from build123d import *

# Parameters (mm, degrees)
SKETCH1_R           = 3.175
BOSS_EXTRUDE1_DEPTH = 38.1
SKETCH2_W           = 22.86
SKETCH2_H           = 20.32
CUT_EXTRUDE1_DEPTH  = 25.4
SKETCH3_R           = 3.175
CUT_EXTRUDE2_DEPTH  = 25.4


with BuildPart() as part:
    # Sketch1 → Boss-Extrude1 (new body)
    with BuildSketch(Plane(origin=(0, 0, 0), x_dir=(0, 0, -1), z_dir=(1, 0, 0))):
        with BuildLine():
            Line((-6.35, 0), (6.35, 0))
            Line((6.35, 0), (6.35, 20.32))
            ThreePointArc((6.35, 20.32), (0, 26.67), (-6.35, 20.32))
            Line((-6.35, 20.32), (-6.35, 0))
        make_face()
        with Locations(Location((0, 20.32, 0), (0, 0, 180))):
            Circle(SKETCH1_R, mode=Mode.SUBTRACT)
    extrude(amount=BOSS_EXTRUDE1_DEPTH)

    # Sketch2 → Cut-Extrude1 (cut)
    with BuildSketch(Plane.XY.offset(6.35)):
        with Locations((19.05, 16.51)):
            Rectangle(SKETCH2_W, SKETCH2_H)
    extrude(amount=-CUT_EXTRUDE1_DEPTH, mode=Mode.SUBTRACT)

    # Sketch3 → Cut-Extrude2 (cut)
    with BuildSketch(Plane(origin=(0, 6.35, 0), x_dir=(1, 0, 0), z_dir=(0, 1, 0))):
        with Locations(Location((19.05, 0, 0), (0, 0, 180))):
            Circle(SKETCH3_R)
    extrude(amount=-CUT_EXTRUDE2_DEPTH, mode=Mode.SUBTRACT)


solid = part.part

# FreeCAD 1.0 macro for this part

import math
import FreeCAD as App
import Part
import Sketcher

V = App.Vector
Q = App.Units.Quantity

doc = App.newDocument("Part")
body = doc.addObject("PartDesign::Body", "Body")

sketch1 = body.newObject("Sketcher::SketchObject", "Sketch")
sketch1.AttachmentSupport = (doc.getObject("YZ_Plane"), [""])
sketch1.MapMode = "FlatFace"
sketch1.addGeometry([
    Part.LineSegment(V(0, 6.3, 0), V(0, -6.3, 0)),
    Part.LineSegment(V(0, -6.3, 0), V(20.3, -6.3, 0)),
    Part.ArcOfCircle(Part.Circle(V(20.3, 0, 0), V(0, 0, 1), 6.3), math.radians(-90), math.radians(90)),
    Part.LineSegment(V(20.3, 6.3, 0), V(0, 6.3, 0)),
    Part.Circle(V(20.3, 0, 0), V(0, 0, 1), 3.2),
], False)
sketch1.addConstraint([
    Sketcher.Constraint("Coincident", 0, 2, 1, 1),
    Sketcher.Constraint("Tangent", 1, 2, 2, 1),
    Sketcher.Constraint("Tangent", 2, 2, 3, 1),
    Sketcher.Constraint("Coincident", 3, 2, 0, 1),
    Sketcher.Constraint("Vertical", 0),
    Sketcher.Constraint("Horizontal", 1),
    Sketcher.Constraint("Horizontal", 3),
    Sketcher.Constraint("Coincident", 4, 3, 2, 3),
    Sketcher.Constraint("Symmetric", 0, 2, 3, 2, -1, 1),
    Sketcher.Constraint("Diameter", 4, Q("0.25 in")),
    Sketcher.Constraint("Radius", 2, Q("0.25 in")),
    Sketcher.Constraint("DistanceX", 1, 1, 1, 2, Q("0.8 in")),
])
pad1 = body.newObject("PartDesign::Pad", "Pad")
pad1.Profile = sketch1
pad1.Length = Q("1.5 in")

sketch2 = body.newObject("Sketcher::SketchObject", "Sketch001")
sketch2.AttachmentSupport = (doc.getObject("XY_Plane"), [""])
sketch2.MapMode = "FlatFace"
sketch2.AttachmentOffset = App.Placement(V(0, 0, 0.25 * 25.4), App.Rotation())
sketch2.addGeometry([
    Part.LineSegment(V(8, 27, 0), V(8, 6, 0)),
    Part.LineSegment(V(8, 6, 0), V(30, 6, 0)),
    Part.LineSegment(V(30, 6, 0), V(30, 27, 0)),
    Part.LineSegment(V(30, 27, 0), V(8, 27, 0)),
], False)
sketch2.addConstraint([
    Sketcher.Constraint("Coincident", 0, 2, 1, 1),
    Sketcher.Constraint("Coincident", 1, 2, 2, 1),
    Sketcher.Constraint("Coincident", 2, 2, 3, 1),
    Sketcher.Constraint("Coincident", 3, 2, 0, 1),
    Sketcher.Constraint("Vertical", 0),
    Sketcher.Constraint("Horizontal", 1),
    Sketcher.Constraint("Vertical", 2),
    Sketcher.Constraint("Horizontal", 3),
    Sketcher.Constraint("DistanceX", 1, 1, 1, 2, Q("0.9 in")),
    Sketcher.Constraint("DistanceY", 0, 2, 0, 1, Q("0.8 in")),
    Sketcher.Constraint("DistanceX", -1, 1, 0, 2, Q("0.3 in")),
    Sketcher.Constraint("DistanceY", -1, 1, 0, 2, Q("0.25 in")),
])
pocket1 = body.newObject("PartDesign::Pocket", "Pocket")
pocket1.Profile = sketch2
pocket1.Length = Q("1 in")

sketch3 = body.newObject("Sketcher::SketchObject", "Sketch002")
sketch3.AttachmentSupport = (doc.getObject("XZ_Plane"), [""])
sketch3.MapMode = "FlatFace"
sketch3.AttachmentOffset = App.Placement(V(0, 0, -0.25 * 25.4), App.Rotation())
sketch3.addGeometry(Part.Circle(V(19.1, 0, 0), V(0, 0, 1), 3.2), False)
sketch3.addConstraint([
    Sketcher.Constraint("PointOnObject", 0, 3, -1),
    Sketcher.Constraint("Diameter", 0, Q("0.25 in")),
    Sketcher.Constraint("DistanceX", -1, 1, 0, 3, Q("0.75 in")),
])
pocket2 = body.newObject("PartDesign::Pocket", "Pocket001")
pocket2.Profile = sketch3
pocket2.Length = Q("1 in")
pocket2.Reversed = True

doc.recompute()
